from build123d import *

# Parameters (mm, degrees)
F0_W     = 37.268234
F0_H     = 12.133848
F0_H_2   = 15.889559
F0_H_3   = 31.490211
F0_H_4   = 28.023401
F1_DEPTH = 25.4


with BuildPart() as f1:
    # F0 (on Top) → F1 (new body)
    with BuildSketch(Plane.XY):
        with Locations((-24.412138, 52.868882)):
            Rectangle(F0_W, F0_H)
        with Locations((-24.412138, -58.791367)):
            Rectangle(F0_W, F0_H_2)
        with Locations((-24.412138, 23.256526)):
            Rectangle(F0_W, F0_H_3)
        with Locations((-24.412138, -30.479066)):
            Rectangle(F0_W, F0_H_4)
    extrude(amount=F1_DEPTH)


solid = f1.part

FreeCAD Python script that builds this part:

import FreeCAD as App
import Part
import Sketcher

V = App.Vector
Q = App.Units.Quantity


def add_polygon(sketch, points):
    """Adds a closed chain of lines whose ends are joined by coincident constraints."""
    first, n = sketch.GeometryCount, len(points)
    for a, b in zip(points, points[1:] + points[:1]):
        sketch.addGeometry(Part.LineSegment(App.Vector(*a, 0), App.Vector(*b, 0)), False)
    for i in range(n):
        sketch.addConstraint(Sketcher.Constraint("Coincident", first + i, 2, first + (i + 1) % n, 1))

doc = App.newDocument("Part")
body = doc.addObject("PartDesign::Body", "Body")
body.AllowCompound = True

sketch1 = doc.addObject("Sketcher::SketchObject", "Sketch")
body.addObject(sketch1)
sketch1.AttachmentSupport = (doc.XY_Plane, [""])
sketch1.MapMode = "FlatFace"
add_polygon(sketch1, [(-43, 59), (-43, 47), (-6, 47), (-6, 59)])
add_polygon(sketch1, [(-43, -51), (-43, -67), (-6, -67), (-6, -51)])
add_polygon(sketch1, [(-43, 39), (-43, 8), (-6, 8), (-6, 39)])
add_polygon(sketch1, [(-43, -16), (-43, -44), (-6, -44), (-6, -16)])
sketch1.addConstraint(Sketcher.Constraint("Vertical", 0))
sketch1.addConstraint(Sketcher.Constraint("Horizontal", 1))
sketch1.addConstraint(Sketcher.Constraint("Vertical", 2))
sketch1.addConstraint(Sketcher.Constraint("Horizontal", 3))
sketch1.addConstraint(Sketcher.Constraint("Vertical", 4))
sketch1.addConstraint(Sketcher.Constraint("Horizontal", 5))
sketch1.addConstraint(Sketcher.Constraint("Vertical", 6))
sketch1.addConstraint(Sketcher.Constraint("Horizontal", 7))
sketch1.addConstraint(Sketcher.Constraint("Vertical", 8))
sketch1.addConstraint(Sketcher.Constraint("Horizontal", 9))
sketch1.addConstraint(Sketcher.Constraint("Vertical", 10))
sketch1.addConstraint(Sketcher.Constraint("Horizontal", 11))
sketch1.addConstraint(Sketcher.Constraint("Vertical", 12))
sketch1.addConstraint(Sketcher.Constraint("Horizontal", 13))
sketch1.addConstraint(Sketcher.Constraint("Vertical", 14))
sketch1.addConstraint(Sketcher.Constraint("Horizontal", 15))
sketch1.addConstraint(Sketcher.Constraint("Vertical", 3, 2, 4, 2))
sketch1.addConstraint(Sketcher.Constraint("Vertical", 2, 2, 5, 2))
sketch1.addConstraint(Sketcher.Constraint("Vertical", 7, 2, 8, 2))
sketch1.addConstraint(Sketcher.Constraint("Vertical", 6, 2, 9, 2))
sketch1.addConstraint(Sketcher.Constraint("Vertical", 11, 2, 12, 2))
sketch1.addConstraint(Sketcher.Constraint("Vertical", 10, 2, 13, 2))
sketch1.addConstraint(Sketcher.Constraint("DistanceY", 12, 2, 12, 1, 28.023401))
sketch1.addConstraint(Sketcher.Constraint("DistanceY", 4, 2, 4, 1, 15.889559))
sketch1.addConstraint(Sketcher.Constraint("DistanceY", 8, 2, 8, 1, 31.490211))
sketch1.addConstraint(Sketcher.Constraint("DistanceX", 1, 1, 1, 2, 37.268234))
sketch1.addConstraint(Sketcher.Constraint("DistanceY", 0, 2, 0, 1, 12.133848))
sketch1.addConstraint(Sketcher.Constraint("DistanceX", 1, 2, -1, 1, 5.778021))
sketch1.addConstraint(Sketcher.Constraint("DistanceY", -1, 1, 8, 2, 7.51142))
sketch1.addConstraint(Sketcher.Constraint("DistanceY", 7, 2, 12, 2, 6.355821))
sketch1.addConstraint(Sketcher.Constraint("DistanceY", -1, 1, 0, 2, 46.801958))
sketch1.addConstraint(Sketcher.Constraint("DistanceY", 4, 2, -1, 1, 66.736147))
pad1 = doc.addObject("PartDesign::Pad", "Pad")
body.addObject(pad1)
pad1.Profile = sketch1
pad1.Length = Q("1 in")

doc.recompute()
